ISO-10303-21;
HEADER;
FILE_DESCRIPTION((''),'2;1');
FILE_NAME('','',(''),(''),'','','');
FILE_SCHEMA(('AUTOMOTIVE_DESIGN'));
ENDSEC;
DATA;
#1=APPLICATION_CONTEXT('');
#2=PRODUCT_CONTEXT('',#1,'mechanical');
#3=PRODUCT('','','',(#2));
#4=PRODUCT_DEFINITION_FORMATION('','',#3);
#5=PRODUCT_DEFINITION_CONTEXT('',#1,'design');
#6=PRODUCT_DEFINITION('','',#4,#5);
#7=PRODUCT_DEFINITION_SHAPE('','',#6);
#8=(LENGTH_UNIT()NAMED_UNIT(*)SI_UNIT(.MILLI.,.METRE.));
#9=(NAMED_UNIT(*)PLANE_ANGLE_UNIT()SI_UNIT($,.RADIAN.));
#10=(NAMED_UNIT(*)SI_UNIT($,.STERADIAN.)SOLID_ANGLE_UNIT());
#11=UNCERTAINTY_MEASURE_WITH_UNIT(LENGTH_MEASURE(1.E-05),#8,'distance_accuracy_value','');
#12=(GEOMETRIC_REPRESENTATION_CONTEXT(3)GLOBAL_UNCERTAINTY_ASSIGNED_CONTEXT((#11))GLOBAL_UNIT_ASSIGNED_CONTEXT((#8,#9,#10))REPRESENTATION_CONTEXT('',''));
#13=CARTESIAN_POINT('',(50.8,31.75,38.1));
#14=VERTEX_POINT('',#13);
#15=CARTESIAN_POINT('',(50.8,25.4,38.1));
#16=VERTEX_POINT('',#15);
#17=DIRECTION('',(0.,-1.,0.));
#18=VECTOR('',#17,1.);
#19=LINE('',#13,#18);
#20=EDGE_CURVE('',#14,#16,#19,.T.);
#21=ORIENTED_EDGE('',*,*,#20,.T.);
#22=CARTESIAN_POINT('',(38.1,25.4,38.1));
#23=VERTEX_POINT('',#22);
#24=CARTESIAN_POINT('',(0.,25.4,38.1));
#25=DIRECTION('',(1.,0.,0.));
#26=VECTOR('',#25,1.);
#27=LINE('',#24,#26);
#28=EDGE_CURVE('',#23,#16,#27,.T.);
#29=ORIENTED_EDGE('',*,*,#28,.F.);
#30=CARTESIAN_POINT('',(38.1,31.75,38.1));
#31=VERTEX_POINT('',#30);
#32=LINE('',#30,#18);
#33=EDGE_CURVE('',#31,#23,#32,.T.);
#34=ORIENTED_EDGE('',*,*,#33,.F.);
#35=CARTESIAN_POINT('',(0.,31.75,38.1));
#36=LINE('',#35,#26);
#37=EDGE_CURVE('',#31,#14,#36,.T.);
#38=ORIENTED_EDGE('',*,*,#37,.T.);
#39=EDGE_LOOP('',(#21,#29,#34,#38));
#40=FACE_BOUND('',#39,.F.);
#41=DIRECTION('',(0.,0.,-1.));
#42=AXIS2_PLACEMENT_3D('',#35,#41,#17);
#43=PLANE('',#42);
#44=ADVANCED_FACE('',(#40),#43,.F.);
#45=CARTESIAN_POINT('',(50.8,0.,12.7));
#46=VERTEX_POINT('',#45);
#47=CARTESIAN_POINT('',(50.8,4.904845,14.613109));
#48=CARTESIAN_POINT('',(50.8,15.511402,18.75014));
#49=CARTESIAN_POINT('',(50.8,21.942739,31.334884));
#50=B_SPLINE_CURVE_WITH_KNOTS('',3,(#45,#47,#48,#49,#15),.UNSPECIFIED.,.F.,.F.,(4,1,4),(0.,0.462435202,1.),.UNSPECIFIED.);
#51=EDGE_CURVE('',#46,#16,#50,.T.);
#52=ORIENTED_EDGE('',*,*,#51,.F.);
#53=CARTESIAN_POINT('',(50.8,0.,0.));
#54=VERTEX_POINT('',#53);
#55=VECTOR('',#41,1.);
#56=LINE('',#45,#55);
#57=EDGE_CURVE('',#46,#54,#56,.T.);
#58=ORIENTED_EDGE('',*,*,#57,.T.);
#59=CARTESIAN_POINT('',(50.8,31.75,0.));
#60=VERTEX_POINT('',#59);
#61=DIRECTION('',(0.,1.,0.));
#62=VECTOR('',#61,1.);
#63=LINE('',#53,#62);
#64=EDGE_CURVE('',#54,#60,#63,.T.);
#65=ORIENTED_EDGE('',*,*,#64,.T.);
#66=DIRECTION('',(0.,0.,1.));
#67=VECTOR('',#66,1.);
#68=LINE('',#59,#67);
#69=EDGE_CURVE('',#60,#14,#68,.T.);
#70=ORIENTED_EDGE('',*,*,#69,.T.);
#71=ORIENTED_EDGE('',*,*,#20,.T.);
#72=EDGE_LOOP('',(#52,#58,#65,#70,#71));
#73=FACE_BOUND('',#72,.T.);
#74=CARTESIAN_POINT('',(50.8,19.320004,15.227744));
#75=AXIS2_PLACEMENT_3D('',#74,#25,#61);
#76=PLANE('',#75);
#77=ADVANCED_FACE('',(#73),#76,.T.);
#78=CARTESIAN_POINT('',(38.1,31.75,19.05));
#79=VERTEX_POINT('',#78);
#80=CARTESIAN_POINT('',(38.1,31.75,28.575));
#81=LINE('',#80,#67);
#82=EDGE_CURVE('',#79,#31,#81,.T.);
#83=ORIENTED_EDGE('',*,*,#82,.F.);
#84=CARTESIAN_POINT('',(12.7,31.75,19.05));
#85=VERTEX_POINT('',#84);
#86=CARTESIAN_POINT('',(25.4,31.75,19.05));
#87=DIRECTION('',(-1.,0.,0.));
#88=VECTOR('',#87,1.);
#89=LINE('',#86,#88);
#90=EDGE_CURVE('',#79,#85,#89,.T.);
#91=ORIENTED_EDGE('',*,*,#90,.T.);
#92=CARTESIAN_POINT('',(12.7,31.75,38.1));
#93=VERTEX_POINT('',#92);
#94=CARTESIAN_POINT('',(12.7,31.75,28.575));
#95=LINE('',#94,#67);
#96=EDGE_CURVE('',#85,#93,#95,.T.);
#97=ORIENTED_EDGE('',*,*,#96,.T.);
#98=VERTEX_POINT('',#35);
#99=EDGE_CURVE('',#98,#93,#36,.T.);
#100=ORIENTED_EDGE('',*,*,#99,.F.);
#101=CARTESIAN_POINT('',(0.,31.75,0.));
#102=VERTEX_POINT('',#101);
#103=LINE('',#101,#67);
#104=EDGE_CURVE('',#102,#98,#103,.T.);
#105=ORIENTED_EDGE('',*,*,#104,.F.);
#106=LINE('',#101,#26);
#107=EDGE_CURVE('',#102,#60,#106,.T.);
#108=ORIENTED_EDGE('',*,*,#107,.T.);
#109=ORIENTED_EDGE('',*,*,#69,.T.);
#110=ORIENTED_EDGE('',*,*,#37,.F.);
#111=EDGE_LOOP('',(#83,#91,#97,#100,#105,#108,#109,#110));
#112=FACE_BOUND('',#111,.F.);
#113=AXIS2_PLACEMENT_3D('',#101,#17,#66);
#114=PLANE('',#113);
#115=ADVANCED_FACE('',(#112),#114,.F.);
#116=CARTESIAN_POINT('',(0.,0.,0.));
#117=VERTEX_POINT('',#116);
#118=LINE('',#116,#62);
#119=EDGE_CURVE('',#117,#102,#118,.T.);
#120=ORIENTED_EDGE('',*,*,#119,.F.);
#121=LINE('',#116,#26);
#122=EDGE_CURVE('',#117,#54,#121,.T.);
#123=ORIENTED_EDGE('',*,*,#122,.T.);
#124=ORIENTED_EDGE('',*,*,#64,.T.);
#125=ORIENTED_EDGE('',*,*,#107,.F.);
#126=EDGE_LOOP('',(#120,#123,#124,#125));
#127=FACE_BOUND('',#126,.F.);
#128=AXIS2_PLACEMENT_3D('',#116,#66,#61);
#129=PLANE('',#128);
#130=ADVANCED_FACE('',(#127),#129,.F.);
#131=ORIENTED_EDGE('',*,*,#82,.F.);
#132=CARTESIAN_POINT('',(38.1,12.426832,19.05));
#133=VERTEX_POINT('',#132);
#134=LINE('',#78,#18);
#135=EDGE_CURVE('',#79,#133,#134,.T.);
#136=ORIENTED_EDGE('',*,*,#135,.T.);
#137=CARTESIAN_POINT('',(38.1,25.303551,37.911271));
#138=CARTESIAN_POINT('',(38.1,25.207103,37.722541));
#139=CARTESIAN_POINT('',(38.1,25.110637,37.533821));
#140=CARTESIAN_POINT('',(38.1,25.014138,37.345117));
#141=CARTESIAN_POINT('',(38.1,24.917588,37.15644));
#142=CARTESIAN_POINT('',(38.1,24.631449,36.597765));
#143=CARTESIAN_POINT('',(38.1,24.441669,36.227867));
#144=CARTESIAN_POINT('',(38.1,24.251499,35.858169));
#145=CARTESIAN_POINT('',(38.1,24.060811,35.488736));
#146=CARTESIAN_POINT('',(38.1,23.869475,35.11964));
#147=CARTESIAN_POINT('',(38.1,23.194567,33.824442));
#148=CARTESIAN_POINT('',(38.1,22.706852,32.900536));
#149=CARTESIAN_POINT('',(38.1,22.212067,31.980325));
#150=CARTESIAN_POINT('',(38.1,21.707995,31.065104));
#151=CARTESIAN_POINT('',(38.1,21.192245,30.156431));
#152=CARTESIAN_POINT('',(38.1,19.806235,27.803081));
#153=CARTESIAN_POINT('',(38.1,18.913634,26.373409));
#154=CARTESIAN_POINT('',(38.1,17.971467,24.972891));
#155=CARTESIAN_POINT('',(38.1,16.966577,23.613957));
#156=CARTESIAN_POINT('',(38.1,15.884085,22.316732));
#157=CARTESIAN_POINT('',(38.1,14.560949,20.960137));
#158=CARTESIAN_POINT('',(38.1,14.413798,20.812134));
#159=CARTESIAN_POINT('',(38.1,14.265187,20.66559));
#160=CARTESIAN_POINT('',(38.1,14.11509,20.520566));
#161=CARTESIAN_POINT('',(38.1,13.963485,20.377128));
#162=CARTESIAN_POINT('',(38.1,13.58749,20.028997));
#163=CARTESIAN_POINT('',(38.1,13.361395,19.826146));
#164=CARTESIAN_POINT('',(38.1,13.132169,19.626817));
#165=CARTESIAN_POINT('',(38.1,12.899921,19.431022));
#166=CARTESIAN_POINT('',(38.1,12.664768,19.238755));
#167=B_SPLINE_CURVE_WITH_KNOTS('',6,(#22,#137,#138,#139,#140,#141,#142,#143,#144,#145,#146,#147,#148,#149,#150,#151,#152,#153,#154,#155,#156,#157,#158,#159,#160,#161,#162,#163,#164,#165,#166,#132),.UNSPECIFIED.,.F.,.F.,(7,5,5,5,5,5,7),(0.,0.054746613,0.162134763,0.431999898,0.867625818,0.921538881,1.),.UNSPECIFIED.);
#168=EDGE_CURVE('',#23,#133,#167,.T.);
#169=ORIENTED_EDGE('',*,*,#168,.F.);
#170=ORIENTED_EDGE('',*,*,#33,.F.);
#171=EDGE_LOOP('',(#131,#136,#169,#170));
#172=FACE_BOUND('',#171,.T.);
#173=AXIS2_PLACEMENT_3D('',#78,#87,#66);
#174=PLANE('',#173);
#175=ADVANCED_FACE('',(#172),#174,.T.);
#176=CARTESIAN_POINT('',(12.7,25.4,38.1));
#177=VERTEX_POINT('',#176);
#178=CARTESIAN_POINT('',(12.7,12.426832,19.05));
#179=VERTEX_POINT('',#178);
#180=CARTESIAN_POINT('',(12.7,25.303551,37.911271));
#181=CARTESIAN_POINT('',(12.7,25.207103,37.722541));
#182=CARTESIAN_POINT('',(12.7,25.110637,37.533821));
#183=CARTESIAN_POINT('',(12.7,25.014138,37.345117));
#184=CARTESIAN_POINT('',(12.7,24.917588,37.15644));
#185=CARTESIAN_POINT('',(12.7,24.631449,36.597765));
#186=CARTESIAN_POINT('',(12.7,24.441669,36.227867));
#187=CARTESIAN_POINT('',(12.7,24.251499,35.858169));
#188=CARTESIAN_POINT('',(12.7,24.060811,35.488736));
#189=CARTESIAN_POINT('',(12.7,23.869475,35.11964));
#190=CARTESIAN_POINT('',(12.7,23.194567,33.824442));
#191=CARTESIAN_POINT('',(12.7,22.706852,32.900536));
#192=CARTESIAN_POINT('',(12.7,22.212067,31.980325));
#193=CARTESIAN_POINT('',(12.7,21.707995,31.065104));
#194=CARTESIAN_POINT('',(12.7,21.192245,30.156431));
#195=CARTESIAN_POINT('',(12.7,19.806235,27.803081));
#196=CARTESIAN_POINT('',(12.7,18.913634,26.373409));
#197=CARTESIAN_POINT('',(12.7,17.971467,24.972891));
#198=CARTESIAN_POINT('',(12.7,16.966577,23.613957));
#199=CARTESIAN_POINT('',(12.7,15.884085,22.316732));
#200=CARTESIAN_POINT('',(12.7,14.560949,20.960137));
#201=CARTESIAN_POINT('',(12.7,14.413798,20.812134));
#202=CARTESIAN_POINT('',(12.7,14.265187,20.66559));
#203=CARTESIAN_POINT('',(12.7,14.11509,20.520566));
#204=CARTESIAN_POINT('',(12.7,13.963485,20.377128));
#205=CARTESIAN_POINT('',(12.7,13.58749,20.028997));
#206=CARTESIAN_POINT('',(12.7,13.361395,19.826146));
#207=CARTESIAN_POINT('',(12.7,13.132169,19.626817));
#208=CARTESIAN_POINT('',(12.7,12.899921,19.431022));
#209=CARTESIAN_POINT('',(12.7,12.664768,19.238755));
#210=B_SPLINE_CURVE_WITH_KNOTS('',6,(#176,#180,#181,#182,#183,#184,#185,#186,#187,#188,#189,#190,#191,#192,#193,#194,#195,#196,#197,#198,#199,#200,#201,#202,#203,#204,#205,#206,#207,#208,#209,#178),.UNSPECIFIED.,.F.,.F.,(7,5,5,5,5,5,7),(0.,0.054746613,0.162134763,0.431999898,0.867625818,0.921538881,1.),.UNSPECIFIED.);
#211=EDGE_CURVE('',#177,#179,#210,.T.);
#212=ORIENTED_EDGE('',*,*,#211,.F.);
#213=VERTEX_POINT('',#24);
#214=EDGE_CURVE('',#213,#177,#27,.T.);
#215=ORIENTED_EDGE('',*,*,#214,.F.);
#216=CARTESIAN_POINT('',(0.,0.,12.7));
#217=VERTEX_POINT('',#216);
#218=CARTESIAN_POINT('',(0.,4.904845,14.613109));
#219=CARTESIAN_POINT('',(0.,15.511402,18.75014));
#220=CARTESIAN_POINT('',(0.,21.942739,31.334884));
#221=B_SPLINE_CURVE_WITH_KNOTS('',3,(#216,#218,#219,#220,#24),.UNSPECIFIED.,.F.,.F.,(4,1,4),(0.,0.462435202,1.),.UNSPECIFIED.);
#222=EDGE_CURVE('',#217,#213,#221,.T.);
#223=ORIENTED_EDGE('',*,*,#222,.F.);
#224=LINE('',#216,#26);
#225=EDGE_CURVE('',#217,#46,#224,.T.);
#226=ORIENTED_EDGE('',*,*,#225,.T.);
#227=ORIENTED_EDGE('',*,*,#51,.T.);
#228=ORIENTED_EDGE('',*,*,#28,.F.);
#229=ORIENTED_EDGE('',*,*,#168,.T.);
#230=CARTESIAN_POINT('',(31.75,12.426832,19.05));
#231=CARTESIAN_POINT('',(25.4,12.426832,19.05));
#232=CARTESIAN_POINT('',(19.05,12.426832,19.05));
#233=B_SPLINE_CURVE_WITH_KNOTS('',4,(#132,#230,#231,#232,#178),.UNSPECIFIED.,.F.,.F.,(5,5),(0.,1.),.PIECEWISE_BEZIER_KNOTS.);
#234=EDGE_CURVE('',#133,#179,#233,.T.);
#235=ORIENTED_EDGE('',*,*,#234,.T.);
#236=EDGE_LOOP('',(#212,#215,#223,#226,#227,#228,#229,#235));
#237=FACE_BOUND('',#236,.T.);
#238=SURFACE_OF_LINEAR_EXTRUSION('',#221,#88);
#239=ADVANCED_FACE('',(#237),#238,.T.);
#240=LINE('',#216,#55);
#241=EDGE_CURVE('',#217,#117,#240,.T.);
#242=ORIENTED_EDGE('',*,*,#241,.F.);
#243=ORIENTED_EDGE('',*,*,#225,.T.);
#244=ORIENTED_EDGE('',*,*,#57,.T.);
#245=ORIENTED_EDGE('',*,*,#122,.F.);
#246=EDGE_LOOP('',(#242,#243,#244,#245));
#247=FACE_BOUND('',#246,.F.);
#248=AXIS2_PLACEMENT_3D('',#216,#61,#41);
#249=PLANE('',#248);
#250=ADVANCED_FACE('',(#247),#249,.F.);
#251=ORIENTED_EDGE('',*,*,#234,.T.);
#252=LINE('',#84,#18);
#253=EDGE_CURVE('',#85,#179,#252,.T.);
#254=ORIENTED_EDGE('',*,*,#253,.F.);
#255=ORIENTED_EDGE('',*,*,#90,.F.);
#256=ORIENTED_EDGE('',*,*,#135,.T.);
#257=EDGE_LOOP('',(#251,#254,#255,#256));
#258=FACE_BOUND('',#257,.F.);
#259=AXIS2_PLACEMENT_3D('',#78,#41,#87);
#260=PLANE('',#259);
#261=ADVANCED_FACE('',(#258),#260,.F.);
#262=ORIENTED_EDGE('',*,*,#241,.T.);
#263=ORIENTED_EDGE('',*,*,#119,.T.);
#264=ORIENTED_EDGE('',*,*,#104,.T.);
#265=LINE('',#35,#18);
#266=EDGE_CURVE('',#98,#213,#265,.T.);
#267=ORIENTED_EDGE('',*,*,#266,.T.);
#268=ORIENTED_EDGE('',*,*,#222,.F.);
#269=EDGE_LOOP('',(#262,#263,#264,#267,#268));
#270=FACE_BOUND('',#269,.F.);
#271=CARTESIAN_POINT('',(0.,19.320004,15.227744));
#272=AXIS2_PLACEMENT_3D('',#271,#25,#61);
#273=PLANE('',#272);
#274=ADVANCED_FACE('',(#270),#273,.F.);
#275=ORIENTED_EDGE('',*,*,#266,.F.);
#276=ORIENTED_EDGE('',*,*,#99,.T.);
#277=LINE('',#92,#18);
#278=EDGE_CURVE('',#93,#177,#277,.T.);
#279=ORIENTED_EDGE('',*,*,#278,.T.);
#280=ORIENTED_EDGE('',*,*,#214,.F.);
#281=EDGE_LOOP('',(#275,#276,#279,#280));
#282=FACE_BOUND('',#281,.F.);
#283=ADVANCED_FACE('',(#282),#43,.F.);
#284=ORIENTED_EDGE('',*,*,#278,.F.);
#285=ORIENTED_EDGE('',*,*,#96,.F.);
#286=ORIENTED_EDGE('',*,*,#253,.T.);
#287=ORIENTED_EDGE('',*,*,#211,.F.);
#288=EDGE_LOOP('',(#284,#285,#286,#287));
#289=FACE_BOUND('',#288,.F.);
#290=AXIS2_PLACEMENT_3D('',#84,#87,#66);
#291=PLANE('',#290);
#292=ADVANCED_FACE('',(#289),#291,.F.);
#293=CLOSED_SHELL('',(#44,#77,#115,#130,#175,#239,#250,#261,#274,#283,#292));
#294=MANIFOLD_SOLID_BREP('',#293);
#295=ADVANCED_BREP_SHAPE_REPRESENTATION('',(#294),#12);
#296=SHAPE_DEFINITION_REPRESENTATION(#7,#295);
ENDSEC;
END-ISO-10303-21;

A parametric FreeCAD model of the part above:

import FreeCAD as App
import Part
import Sketcher
from FreeCAD import Vector
Q = App.Units.Quantity


def add_polygon(sketch, points):
    """Adds a closed chain of lines whose ends are joined by coincident constraints."""
    first, n = sketch.GeometryCount, len(points)
    for a, b in zip(points, points[1:] + points[:1]):
        sketch.addGeometry(Part.LineSegment(App.Vector(*a, 0), App.Vector(*b, 0)), False)
    for i in range(n):
        sketch.addConstraint(Sketcher.Constraint("Coincident", first + i, 2, first + (i + 1) % n, 1))

doc = App.newDocument("Part")
params = doc.addObject("Spreadsheet::Sheet", "Params")
for row, (alias, value) in enumerate([
    ("sketch1_width", "1.25 in"),
    ("pad1_length", "2 in"),
    ("sketch2_width", "1 in"),
    ("sketch2_height", "0.75 in"),
    ("pocket1_length", "1 in"),
], start=1):
    params.set(f"A{row}", alias)
    params.set(f"B{row}", "=" + value)
    params.setAlias(f"B{row}", alias)

body = doc.addObject("PartDesign::Body", "Body")

sketch1 = body.newObject("Sketcher::SketchObject", "Sketch")
sketch1.AttachmentSupport = (doc.getObject("YZ_Plane"), [""])
sketch1.MapMode = "FlatFace"
sketch1.addGeometry([
    Part.LineSegment(Vector(0, 12.7, 0), Vector(0, 0, 0)),
    Part.LineSegment(Vector(0, 0, 0), Vector(31.75, 0, 0)),
    Part.LineSegment(Vector(31.75, 0, 0), Vector(31.75, 38.1, 0)),
    Part.LineSegment(Vector(31.75, 38.1, 0), Vector(25.4, 38.1, 0)),
    Part.BSplineCurve([Vector(0, 12.7, 0), Vector(4.904845, 14.613109, 0), Vector(15.511402, 18.75014, 0), Vector(21.942739, 31.334884, 0), Vector(25.4, 38.1, 0)], [4, 1, 4], [0, 0.462435202, 1], False, 3, [1, 1, 1, 1, 1], False),
], False)
sketch1.addConstraint([
    Sketcher.Constraint("Block", 4),
    Sketcher.Constraint("Coincident", 0, 2, 1, 1),
    Sketcher.Constraint("Coincident", 1, 2, 2, 1),
    Sketcher.Constraint("Coincident", 2, 2, 3, 1),
    Sketcher.Constraint("Coincident", 3, 2, 4, 2),
    Sketcher.Constraint("Coincident", 4, 1, 0, 1),
    Sketcher.Constraint("Vertical", 0),
    Sketcher.Constraint("Horizontal", 1),
    Sketcher.Constraint("Vertical", 2),
    Sketcher.Constraint("Horizontal", 3),
    Sketcher.Constraint("PointOnObject", 1, 2, -1),
    Sketcher.Constraint("DistanceX", 1, 1, 1, 2, Q("1.25 in")),
])
sketch1.setExpression("Constraints[11]", "Params.sketch1_width")
pad1 = body.newObject("PartDesign::Pad", "Pad")
pad1.Profile = sketch1
pad1.setExpression("Length", "Params.pad1_length")

sketch2 = body.newObject("Sketcher::SketchObject", "Sketch001")
sketch2.AttachmentSupport = (doc.getObject("XZ_Plane"), [""])
sketch2.MapMode = "FlatFace"
sketch2.AttachmentOffset = App.Placement(Vector(0, 0, -1.25 * 25.4), App.Rotation())
add_polygon(sketch2, [(38, 38), (38, 19), (13, 19), (13, 38)])
sketch2.addConstraint([
    Sketcher.Constraint("Vertical", 0),
    Sketcher.Constraint("Horizontal", 1),
    Sketcher.Constraint("Vertical", 2),
    Sketcher.Constraint("Horizontal", 3),
    Sketcher.Constraint("DistanceX", 1, 2, 1, 1, Q("1 in")),
    Sketcher.Constraint("DistanceY", 0, 2, 0, 1, Q("0.75 in")),
    Sketcher.Constraint("DistanceX", -1, 1, 0, 2, Q("1.5 in")),
    Sketcher.Constraint("DistanceY", -1, 1, 2, 2, Q("1.5 in")),
])
sketch2.setExpression("Constraints[8]", "Params.sketch2_width")
sketch2.setExpression("Constraints[9]", "Params.sketch2_height")
pocket1 = body.newObject("PartDesign::Pocket", "Pocket")
pocket1.Profile = sketch2
pocket1.setExpression("Length", "Params.pocket1_length")
pocket1.Reversed = True

doc.recompute()
